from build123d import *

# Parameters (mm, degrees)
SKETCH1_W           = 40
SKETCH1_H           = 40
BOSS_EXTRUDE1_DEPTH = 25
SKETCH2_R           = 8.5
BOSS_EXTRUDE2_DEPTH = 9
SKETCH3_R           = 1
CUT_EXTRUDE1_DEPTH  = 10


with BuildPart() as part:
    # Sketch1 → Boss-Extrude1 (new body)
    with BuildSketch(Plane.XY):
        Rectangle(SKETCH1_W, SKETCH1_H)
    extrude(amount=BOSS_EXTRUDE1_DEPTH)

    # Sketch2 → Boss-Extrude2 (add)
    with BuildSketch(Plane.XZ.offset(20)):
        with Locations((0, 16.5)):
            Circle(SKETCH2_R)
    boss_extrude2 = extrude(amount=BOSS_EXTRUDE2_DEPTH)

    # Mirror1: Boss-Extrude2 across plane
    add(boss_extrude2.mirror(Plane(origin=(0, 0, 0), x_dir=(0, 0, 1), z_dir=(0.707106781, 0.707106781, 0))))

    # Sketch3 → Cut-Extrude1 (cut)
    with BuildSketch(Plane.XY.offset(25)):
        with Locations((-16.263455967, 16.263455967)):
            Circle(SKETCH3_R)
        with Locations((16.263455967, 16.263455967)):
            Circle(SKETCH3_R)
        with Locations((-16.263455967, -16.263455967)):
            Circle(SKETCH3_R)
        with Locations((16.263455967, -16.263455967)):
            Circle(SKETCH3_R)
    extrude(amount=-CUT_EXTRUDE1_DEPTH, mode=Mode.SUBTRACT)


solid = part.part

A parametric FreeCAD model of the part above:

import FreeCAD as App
import Part
import Sketcher
from FreeCAD import Vector
Q = App.Units.Quantity

doc = App.newDocument("Part")
body = doc.addObject("PartDesign::Body", "Body")

# Sketch on XY plane
sketch1 = doc.addObject("Sketcher::SketchObject", "Sketch")
body.addObject(sketch1)
sketch1.AttachmentSupport = (doc.XY_Plane, [""])
sketch1.MapMode = "FlatFace"
sketch1.addGeometry([
    Part.LineSegment(Vector(-20, 20, 0), Vector(-20, -20, 0)),
    Part.LineSegment(Vector(-20, -20, 0), Vector(20, -20, 0)),
    Part.LineSegment(Vector(20, -20, 0), Vector(20, 20, 0)),
    Part.LineSegment(Vector(20, 20, 0), Vector(-20, 20, 0)),
], False)
sketch1.addConstraint([
    Sketcher.Constraint("Coincident", 0, 2, 1, 1),
    Sketcher.Constraint("Coincident", 1, 2, 2, 1),
    Sketcher.Constraint("Coincident", 2, 2, 3, 1),
    Sketcher.Constraint("Coincident", 3, 2, 0, 1),
    Sketcher.Constraint("Vertical", 0),
    Sketcher.Constraint("Horizontal", 1),
    Sketcher.Constraint("Vertical", 2),
    Sketcher.Constraint("Horizontal", 3),
    Sketcher.Constraint("Symmetric", 0, 2, 2, 2, -1, 1),
    Sketcher.Constraint("Equal", 3, 0),
    Sketcher.Constraint("DistanceX", 1, 1, 1, 2, Q("40 mm")),
])
pad1 = doc.addObject("PartDesign::Pad", "Pad")
body.addObject(pad1)
pad1.Profile = sketch1
pad1.Length = 25

# Sketch on XZ plane
sketch2 = doc.addObject("Sketcher::SketchObject", "Sketch001")
body.addObject(sketch2)
sketch2.AttachmentSupport = (doc.XZ_Plane, [""])
sketch2.MapMode = "FlatFace"
sketch2.AttachmentOffset = App.Placement(Vector(0, 0, 20), App.Rotation())
sketch2.addGeometry(Part.Circle(Vector(0, 16, 0), Vector(0, 0, 1), 8), False)
sketch2.addConstraint([
    Sketcher.Constraint("PointOnObject", 0, 3, -2),
    Sketcher.Constraint("Diameter", 0, Q("17 mm")),
    Sketcher.Constraint("DistanceY", -1, 1, 0, 3, Q("16.5 mm")),
])
pad2 = doc.addObject("PartDesign::Pad", "Pad001")
body.addObject(pad2)
pad2.Profile = sketch2
pad2.Length = 9
doc.recompute()

datumplane = doc.addObject("PartDesign::Plane", "DatumPlane")
body.addObject(datumplane)
datumplane.Placement = App.Placement(Vector(0, 0, 0), App.Rotation(Vector(0.707106781, -0.707106781, 0), Vector(0, 0, -1), Vector(0.707106781, 0.707106781, 0), "ZXY"))
mirrored = doc.addObject("PartDesign::Mirrored", "Mirrored")
body.addObject(mirrored)
mirrored.Originals = [pad2]
mirrored.MirrorPlane = (datumplane, [""])
body.Tip = mirrored

# Sketch on XY plane
sketch3 = doc.addObject("Sketcher::SketchObject", "Sketch002")
body.addObject(sketch3)
sketch3.AttachmentSupport = (doc.XY_Plane, [""])
sketch3.MapMode = "FlatFace"
sketch3.AttachmentOffset = App.Placement(Vector(0, 0, 25), App.Rotation())
sketch3.addGeometry([
    Part.Circle(Vector(-16.3, 16.3, 0), Vector(0, 0, 1), 1),
    Part.Circle(Vector(16.3, 16.3, 0), Vector(0, 0, 1), 1),
    Part.Circle(Vector(-16.3, -16.3, 0), Vector(0, 0, 1), 1),
    Part.Circle(Vector(16.3, -16.3, 0), Vector(0, 0, 1), 1),
], False)
sketch3.addConstraint([
    Sketcher.Constraint("Equal", 0, 1),
    Sketcher.Constraint("Equal", 1, 2),
    Sketcher.Constraint("Equal", 2, 3),
    Sketcher.Constraint("Symmetric", 1, 3, 2, 3, -1, 1),
    Sketcher.Constraint("Symmetric", 0, 3, 3, 3, -1, 1),
    Sketcher.Constraint("Symmetric", 0, 3, 1, 3, -2),
    Sketcher.Constraint("Diameter", 0, Q("2 mm")),
    Sketcher.Constraint("DistanceX", 0, 3, 1, 3, Q("32.526912 mm")),
    Sketcher.Constraint("DistanceY", 2, 3, 0, 3, Q("32.526912 mm")),
])
pocket1 = doc.addObject("PartDesign::Pocket", "Pocket")
body.addObject(pocket1)
pocket1.Profile = sketch3
pocket1.Length = 10

doc.recompute()
